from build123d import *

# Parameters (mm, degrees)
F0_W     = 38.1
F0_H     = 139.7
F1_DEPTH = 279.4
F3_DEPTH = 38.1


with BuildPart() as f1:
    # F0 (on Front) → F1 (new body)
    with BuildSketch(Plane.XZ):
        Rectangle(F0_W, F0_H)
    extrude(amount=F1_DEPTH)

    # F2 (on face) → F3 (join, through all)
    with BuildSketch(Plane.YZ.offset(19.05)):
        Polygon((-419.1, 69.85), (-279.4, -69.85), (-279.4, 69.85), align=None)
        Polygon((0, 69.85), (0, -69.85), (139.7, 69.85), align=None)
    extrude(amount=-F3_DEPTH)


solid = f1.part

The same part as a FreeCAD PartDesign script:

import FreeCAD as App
import Part
import Sketcher

V = App.Vector
Q = App.Units.Quantity


def add_polygon(sketch, points):
    """Adds a closed chain of lines whose ends are joined by coincident constraints."""
    first, n = sketch.GeometryCount, len(points)
    for a, b in zip(points, points[1:] + points[:1]):
        sketch.addGeometry(Part.LineSegment(App.Vector(*a, 0), App.Vector(*b, 0)), False)
    for i in range(n):
        sketch.addConstraint(Sketcher.Constraint("Coincident", first + i, 2, first + (i + 1) % n, 1))

doc = App.newDocument("Part")
body = doc.addObject("PartDesign::Body", "Body")

sketch1 = body.newObject("Sketcher::SketchObject", "Sketch")
sketch1.AttachmentSupport = (doc.getObject("XZ_Plane"), [""])
sketch1.MapMode = "FlatFace"
add_polygon(sketch1, [(-19, 70), (-19, -70), (19, -70), (19, 70)])
sketch1.addConstraint(Sketcher.Constraint("Vertical", 0))
sketch1.addConstraint(Sketcher.Constraint("Horizontal", 1))
sketch1.addConstraint(Sketcher.Constraint("Vertical", 2))
sketch1.addConstraint(Sketcher.Constraint("Horizontal", 3))
sketch1.addConstraint(Sketcher.Constraint("Symmetric", 0, 2, 2, 2, -1, 1))
sketch1.addConstraint(Sketcher.Constraint("DistanceX", 1, 1, 1, 2, Q("1.5 in")))
sketch1.addConstraint(Sketcher.Constraint("DistanceY", 0, 2, 0, 1, Q("5.5 in")))
pad1 = body.newObject("PartDesign::Pad", "Pad")
pad1.Profile = sketch1
pad1.Length = Q("11 in")

sketch2 = body.newObject("Sketcher::SketchObject", "Sketch001")
sketch2.AttachmentSupport = (doc.getObject("YZ_Plane"), [""])
sketch2.MapMode = "FlatFace"
sketch2.AttachmentOffset = App.Placement(V(0, 0, 0.75 * 25.4), App.Rotation())
add_polygon(sketch2, [(-419, 70), (-279, -70), (-279, 70)])
add_polygon(sketch2, [(0, 70), (0, -70), (140, 70)])
sketch2.addConstraint(Sketcher.Constraint("Vertical", 1))
sketch2.addConstraint(Sketcher.Constraint("Horizontal", 2))
sketch2.addConstraint(Sketcher.Constraint("Vertical", 3))
sketch2.addConstraint(Sketcher.Constraint("Horizontal", 5))
sketch2.addConstraint(Sketcher.Constraint("Symmetric", 3, 2, 5, 2, -1, 1))
sketch2.addConstraint(Sketcher.Constraint("Perpendicular", 0, 4))
sketch2.addConstraint(Sketcher.Constraint("Horizontal", 0, 2, 3, 2))
sketch2.addConstraint(Sketcher.Constraint("Horizontal", 2, 2, 4, 2))
sketch2.addConstraint(Sketcher.Constraint("Equal", 2, 5))
sketch2.addConstraint(Sketcher.Constraint("DistanceX", 2, 2, 2, 1, Q("5.5 in")))
sketch2.addConstraint(Sketcher.Constraint("DistanceX", 0, 2, -1, 1, Q("11 in")))
pad2 = body.newObject("PartDesign::Pad", "Pad001")
pad2.Profile = sketch2
pad2.Type = "UpToLast"
pad2.Reversed = True

doc.recompute()
